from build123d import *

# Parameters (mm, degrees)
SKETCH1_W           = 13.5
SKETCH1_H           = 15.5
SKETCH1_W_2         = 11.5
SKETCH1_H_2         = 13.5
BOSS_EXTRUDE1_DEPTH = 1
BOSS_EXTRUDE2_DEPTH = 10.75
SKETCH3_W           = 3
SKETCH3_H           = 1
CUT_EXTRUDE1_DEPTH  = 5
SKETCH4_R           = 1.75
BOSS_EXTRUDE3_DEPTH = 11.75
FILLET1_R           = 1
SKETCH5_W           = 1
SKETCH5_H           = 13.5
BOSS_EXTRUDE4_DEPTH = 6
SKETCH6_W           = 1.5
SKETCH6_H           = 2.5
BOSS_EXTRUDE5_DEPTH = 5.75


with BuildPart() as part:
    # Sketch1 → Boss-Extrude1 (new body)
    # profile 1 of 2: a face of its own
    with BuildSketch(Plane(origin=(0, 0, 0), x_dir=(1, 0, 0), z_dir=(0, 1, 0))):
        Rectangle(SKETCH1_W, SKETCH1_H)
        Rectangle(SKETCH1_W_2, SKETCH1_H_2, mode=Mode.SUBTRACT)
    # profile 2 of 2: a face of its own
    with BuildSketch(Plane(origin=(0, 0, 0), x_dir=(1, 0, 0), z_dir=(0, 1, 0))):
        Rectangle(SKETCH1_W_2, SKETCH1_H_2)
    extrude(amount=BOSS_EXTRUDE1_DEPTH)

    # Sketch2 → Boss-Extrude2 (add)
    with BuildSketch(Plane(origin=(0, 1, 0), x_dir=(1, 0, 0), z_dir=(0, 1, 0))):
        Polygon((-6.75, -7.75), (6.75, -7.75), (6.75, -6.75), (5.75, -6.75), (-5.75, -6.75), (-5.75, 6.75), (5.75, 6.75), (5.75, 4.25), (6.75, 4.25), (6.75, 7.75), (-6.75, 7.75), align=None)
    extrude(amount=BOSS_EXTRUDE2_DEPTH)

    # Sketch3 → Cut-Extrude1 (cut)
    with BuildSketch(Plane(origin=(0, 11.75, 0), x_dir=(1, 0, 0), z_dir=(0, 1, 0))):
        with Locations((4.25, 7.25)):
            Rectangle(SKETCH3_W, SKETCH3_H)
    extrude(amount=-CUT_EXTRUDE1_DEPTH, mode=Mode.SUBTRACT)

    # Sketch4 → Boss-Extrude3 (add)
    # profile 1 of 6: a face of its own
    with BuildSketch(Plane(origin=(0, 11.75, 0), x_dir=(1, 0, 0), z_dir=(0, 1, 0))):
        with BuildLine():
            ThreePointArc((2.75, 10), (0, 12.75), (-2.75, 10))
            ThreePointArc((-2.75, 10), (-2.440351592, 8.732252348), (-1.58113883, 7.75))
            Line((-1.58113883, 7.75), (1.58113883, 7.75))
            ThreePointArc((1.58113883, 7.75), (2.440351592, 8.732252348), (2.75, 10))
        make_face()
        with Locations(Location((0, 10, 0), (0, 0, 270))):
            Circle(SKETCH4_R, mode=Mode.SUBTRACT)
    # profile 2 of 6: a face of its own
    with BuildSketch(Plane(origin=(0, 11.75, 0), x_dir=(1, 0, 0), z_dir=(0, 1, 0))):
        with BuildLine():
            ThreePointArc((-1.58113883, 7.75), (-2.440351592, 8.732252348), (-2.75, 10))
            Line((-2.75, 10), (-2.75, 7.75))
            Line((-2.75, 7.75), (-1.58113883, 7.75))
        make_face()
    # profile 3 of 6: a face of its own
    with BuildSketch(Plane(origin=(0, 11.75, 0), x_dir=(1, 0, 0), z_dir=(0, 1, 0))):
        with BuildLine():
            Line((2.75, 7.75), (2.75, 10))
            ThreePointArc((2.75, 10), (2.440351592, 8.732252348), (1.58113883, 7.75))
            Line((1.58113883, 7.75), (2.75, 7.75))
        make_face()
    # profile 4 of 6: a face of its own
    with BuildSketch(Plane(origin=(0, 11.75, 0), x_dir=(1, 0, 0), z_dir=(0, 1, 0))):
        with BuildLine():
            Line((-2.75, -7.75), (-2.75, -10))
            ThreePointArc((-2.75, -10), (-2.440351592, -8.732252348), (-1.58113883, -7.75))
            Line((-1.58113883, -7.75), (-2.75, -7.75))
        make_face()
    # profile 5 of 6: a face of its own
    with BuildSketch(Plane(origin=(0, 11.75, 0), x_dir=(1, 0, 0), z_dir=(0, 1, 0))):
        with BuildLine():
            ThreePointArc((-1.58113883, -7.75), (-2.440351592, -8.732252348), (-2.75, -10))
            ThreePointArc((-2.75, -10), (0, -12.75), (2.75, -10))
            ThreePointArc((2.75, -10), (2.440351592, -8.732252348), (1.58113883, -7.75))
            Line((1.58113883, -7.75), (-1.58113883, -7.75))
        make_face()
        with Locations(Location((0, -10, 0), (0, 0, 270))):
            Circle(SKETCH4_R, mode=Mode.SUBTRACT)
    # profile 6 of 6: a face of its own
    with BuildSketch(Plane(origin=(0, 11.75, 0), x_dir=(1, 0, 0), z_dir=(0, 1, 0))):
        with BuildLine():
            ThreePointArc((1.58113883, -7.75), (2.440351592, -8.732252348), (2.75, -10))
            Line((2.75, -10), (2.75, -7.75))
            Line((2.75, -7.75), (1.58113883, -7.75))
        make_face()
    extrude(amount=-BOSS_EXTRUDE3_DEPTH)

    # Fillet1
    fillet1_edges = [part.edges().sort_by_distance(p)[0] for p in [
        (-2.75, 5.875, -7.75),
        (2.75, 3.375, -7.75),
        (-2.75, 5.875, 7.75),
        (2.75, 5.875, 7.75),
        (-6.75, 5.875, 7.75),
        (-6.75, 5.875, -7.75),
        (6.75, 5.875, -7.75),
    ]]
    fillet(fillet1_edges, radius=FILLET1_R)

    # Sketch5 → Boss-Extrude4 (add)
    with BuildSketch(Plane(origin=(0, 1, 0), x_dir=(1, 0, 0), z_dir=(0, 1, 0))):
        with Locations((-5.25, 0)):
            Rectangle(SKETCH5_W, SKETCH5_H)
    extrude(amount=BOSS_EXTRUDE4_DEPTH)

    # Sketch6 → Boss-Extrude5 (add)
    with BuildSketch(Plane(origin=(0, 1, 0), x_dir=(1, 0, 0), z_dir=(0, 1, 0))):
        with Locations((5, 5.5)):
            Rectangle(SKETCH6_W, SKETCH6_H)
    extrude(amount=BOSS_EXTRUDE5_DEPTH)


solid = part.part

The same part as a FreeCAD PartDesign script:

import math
import FreeCAD as App
import Part
import Sketcher
from FreeCAD import Vector
Q = App.Units.Quantity


def edges_at(feature, points):
    """Names of the edges that pass closest to the given points."""
    edges = feature.Shape.Edges
    near = lambda p: min(range(len(edges)), key=lambda i: edges[i].distToShape(Part.Vertex(*p))[0])
    return sorted({f"Edge{near(p) + 1}" for p in points})

doc = App.newDocument("Part")
body = doc.addObject("PartDesign::Body", "Body")

# Sketch on XZ plane
sketch1 = body.newObject("Sketcher::SketchObject", "Sketch")
sketch1.AttachmentSupport = (doc.getObject("XZ_Plane"), [""])
sketch1.MapMode = "FlatFace"
sketch1.addGeometry([
    Part.LineSegment(Vector(-6.75, -7.75, 0), Vector(-6.75, 7.75, 0)),
    Part.LineSegment(Vector(-6.75, 7.75, 0), Vector(6.75, 7.75, 0)),
    Part.LineSegment(Vector(6.75, 7.75, 0), Vector(6.75, -7.75, 0)),
    Part.LineSegment(Vector(6.75, -7.75, 0), Vector(-6.75, -7.75, 0)),
], False)
sketch1.addConstraint([
    Sketcher.Constraint("Coincident", 0, 2, 1, 1),
    Sketcher.Constraint("Coincident", 1, 2, 2, 1),
    Sketcher.Constraint("Coincident", 2, 2, 3, 1),
    Sketcher.Constraint("Coincident", 3, 2, 0, 1),
    Sketcher.Constraint("Vertical", 0),
    Sketcher.Constraint("Horizontal", 1),
    Sketcher.Constraint("Vertical", 2),
    Sketcher.Constraint("Horizontal", 3),
    Sketcher.Constraint("Symmetric", 0, 2, 2, 2, -1, 1),
    Sketcher.Constraint("DistanceX", 1, 1, 1, 2, Q("13.5 mm")),
    Sketcher.Constraint("DistanceY", 0, 1, 0, 2, Q("15.5 mm")),
])
pad1 = body.newObject("PartDesign::Pad", "Pad")
pad1.Profile = sketch1
pad1.Length = 1
pad1.Reversed = True

# Sketch on XZ plane
sketch2 = body.newObject("Sketcher::SketchObject", "Sketch001")
sketch2.AttachmentSupport = (doc.getObject("XZ_Plane"), [""])
sketch2.MapMode = "FlatFace"
sketch2.AttachmentOffset = App.Placement(Vector(0, 0, -1), App.Rotation())
sketch2.addGeometry([
    Part.LineSegment(Vector(-6.75, 7.75, 0), Vector(6.75, 7.75, 0)),  # 0
    Part.LineSegment(Vector(6.75, 7.75, 0), Vector(6.75, 6.75, 0)),  # 1
    Part.LineSegment(Vector(6.75, 6.75, 0), Vector(-5.75, 6.75, 0)),  # 2
    Part.LineSegment(Vector(-5.75, 6.75, 0), Vector(-5.75, -6.75, 0)),  # 3
    Part.LineSegment(Vector(-5.75, -6.75, 0), Vector(5.75, -6.75, 0)),  # 4
    Part.LineSegment(Vector(5.75, -6.75, 0), Vector(5.75, -4.25, 0)),  # 5
    Part.LineSegment(Vector(5.75, -4.25, 0), Vector(6.75, -4.25, 0)),  # 6
    Part.LineSegment(Vector(6.75, -4.25, 0), Vector(6.75, -7.75, 0)),  # 7
    Part.LineSegment(Vector(6.75, -7.75, 0), Vector(-6.75, -7.75, 0)),  # 8
    Part.LineSegment(Vector(-6.75, -7.75, 0), Vector(-6.75, 7.75, 0)),  # 9
], False)
sketch2.addConstraint([
    Sketcher.Constraint("Coincident", 0, 2, 1, 1),
    Sketcher.Constraint("Coincident", 1, 2, 2, 1),
    Sketcher.Constraint("Coincident", 2, 2, 3, 1),
    Sketcher.Constraint("Coincident", 3, 2, 4, 1),
    Sketcher.Constraint("Coincident", 4, 2, 5, 1),
    Sketcher.Constraint("Coincident", 5, 2, 6, 1),
    Sketcher.Constraint("Coincident", 6, 2, 7, 1),
    Sketcher.Constraint("Coincident", 7, 2, 8, 1),
    Sketcher.Constraint("Coincident", 8, 2, 9, 1),
    Sketcher.Constraint("Coincident", 9, 2, 0, 1),
    Sketcher.Constraint("Horizontal", 0),
    Sketcher.Constraint("Vertical", 1),
    Sketcher.Constraint("Horizontal", 2),
    Sketcher.Constraint("Vertical", 3),
    Sketcher.Constraint("Horizontal", 4),
    Sketcher.Constraint("Vertical", 5),
    Sketcher.Constraint("Horizontal", 6),
    Sketcher.Constraint("Vertical", 7),
    Sketcher.Constraint("Horizontal", 8),
    Sketcher.Constraint("Vertical", 9),
    Sketcher.Constraint("Symmetric", 2, 2, 4, 2, -1, 1),
    Sketcher.Constraint("Symmetric", 0, 2, 8, 2, -1, 1),
    Sketcher.Constraint("Vertical", 1, 2, 6, 2),
    Sketcher.Constraint("Equal", 6, 1),
    Sketcher.Constraint("Equal", 8, 3),
    Sketcher.Constraint("DistanceX", 6, 1, 6, 2, Q("1 mm")),
    Sketcher.Constraint("DistanceX", 0, 1, 0, 2, Q("13.5 mm")),
    Sketcher.Constraint("DistanceY", 5, 1, 5, 2, Q("2.5 mm")),
])
pad2 = body.newObject("PartDesign::Pad", "Pad001")
pad2.Profile = sketch2
pad2.Length = 10.75
pad2.Reversed = True

# Sketch on XZ plane
sketch3 = body.newObject("Sketcher::SketchObject", "Sketch002")
sketch3.AttachmentSupport = (doc.getObject("XZ_Plane"), [""])
sketch3.MapMode = "FlatFace"
sketch3.AttachmentOffset = App.Placement(Vector(0, 0, -11.75), App.Rotation())
sketch3.addGeometry([
    Part.LineSegment(Vector(2.75, -7.75, 0), Vector(2.75, -6.75, 0)),
    Part.LineSegment(Vector(2.75, -6.75, 0), Vector(5.75, -6.75, 0)),
    Part.LineSegment(Vector(5.75, -6.75, 0), Vector(5.75, -7.75, 0)),
    Part.LineSegment(Vector(5.75, -7.75, 0), Vector(2.75, -7.75, 0)),
], False)
sketch3.addConstraint([
    Sketcher.Constraint("Coincident", 0, 2, 1, 1),
    Sketcher.Constraint("Coincident", 1, 2, 2, 1),
    Sketcher.Constraint("Coincident", 2, 2, 3, 1),
    Sketcher.Constraint("Coincident", 3, 2, 0, 1),
    Sketcher.Constraint("Vertical", 0),
    Sketcher.Constraint("Horizontal", 1),
    Sketcher.Constraint("Vertical", 2),
    Sketcher.Constraint("Horizontal", 3),
    Sketcher.Constraint("DistanceX", 1, 1, 1, 2, Q("3 mm")),
    Sketcher.Constraint("DistanceY", 0, 1, 0, 2, Q("1 mm")),
    Sketcher.Constraint("DistanceX", -1, 1, 0, 2, Q("2.75 mm")),
    Sketcher.Constraint("DistanceY", 0, 2, -1, 1, Q("6.75 mm")),
])
pocket1 = body.newObject("PartDesign::Pocket", "Pocket")
pocket1.Profile = sketch3
pocket1.Length = 5
pocket1.Reversed = True

# Sketch on XZ plane
sketch4 = body.newObject("Sketcher::SketchObject", "Sketch003")
sketch4.AttachmentSupport = (doc.getObject("XZ_Plane"), [""])
sketch4.MapMode = "FlatFace"
sketch4.AttachmentOffset = App.Placement(Vector(0, 0, -11.75), App.Rotation())
sketch4.addGeometry([
    Part.ArcOfCircle(Part.Circle(Vector(0, -10, 0), Vector(0, 0, 1), 2.75), math.radians(180), math.radians(360)),  # 0
    Part.LineSegment(Vector(-2.75, -10, 0), Vector(-2.75, -7.75, 0)),  # 1
    Part.LineSegment(Vector(-2.75, -7.75, 0), Vector(2.75, -7.75, 0)),  # 2
    Part.LineSegment(Vector(2.75, -7.75, 0), Vector(2.75, -10, 0)),  # 3
    Part.Circle(Vector(0, -10, 0), Vector(0, 0, 1), 1.75),  # 4
    Part.LineSegment(Vector(-2.75, 7.75, 0), Vector(-2.75, 10, 0)),  # 5
    Part.ArcOfCircle(Part.Circle(Vector(0, 10, 0), Vector(0, 0, 1), 2.75), math.radians(0), math.radians(180)),  # 6
    Part.LineSegment(Vector(2.75, 10, 0), Vector(2.75, 7.75, 0)),  # 7
    Part.LineSegment(Vector(2.75, 7.75, 0), Vector(-2.75, 7.75, 0)),  # 8
    Part.Circle(Vector(0, 10, 0), Vector(0, 0, 1), 1.75),  # 9
], False)
sketch4.addConstraint([
    Sketcher.Constraint("Tangent", 0, 1, 1, 1),
    Sketcher.Constraint("Coincident", 1, 2, 2, 1),
    Sketcher.Constraint("Coincident", 2, 2, 3, 1),
    Sketcher.Constraint("Tangent", 3, 2, 0, 2),
    Sketcher.Constraint("Tangent", 5, 2, 6, 2),
    Sketcher.Constraint("Tangent", 6, 1, 7, 1),
    Sketcher.Constraint("Coincident", 7, 2, 8, 1),
    Sketcher.Constraint("Coincident", 8, 2, 5, 1),
    Sketcher.Constraint("Vertical", 1),
    Sketcher.Constraint("Horizontal", 2),
    Sketcher.Constraint("Vertical", 3),
    Sketcher.Constraint("Vertical", 5),
    Sketcher.Constraint("Vertical", 7),
    Sketcher.Constraint("Horizontal", 8),
    Sketcher.Constraint("Coincident", 4, 3, 0, 3),
    Sketcher.Constraint("Coincident", 9, 3, 6, 3),
    Sketcher.Constraint("Equal", 0, 6),
    Sketcher.Constraint("Equal", 4, 9),
    Sketcher.Constraint("Symmetric", 0, 3, 6, 3, -1, 1),
    Sketcher.Constraint("Symmetric", 2, 2, 7, 2, -1),
    Sketcher.Constraint("Diameter", 4, Q("3.5 mm")),
    Sketcher.Constraint("Radius", 0, Q("2.75 mm")),
    Sketcher.Constraint("DistanceY", 0, 3, -1, 1, Q("10 mm")),
    Sketcher.Constraint("DistanceY", 1, 1, 1, 2, Q("2.25 mm")),
])
pad3 = body.newObject("PartDesign::Pad", "Pad002")
pad3.Profile = sketch4
pad3.Length = 11.75
doc.recompute()

fillet = body.newObject("PartDesign::Fillet", "Fillet")
fillet.Base = (pad3, edges_at(pad3, [
    (-2.75, 5.875, -7.75),
    (2.75, 3.375, -7.75),
    (-2.75, 5.875, 7.75),
    (2.75, 5.875, 7.75),
    (-6.75, 5.875, 7.75),
    (-6.75, 5.875, -7.75),
    (6.75, 5.875, -7.75),
]))
fillet.Radius = 1

# Sketch on XZ plane
sketch5 = body.newObject("Sketcher::SketchObject", "Sketch004")
sketch5.AttachmentSupport = (doc.getObject("XZ_Plane"), [""])
sketch5.MapMode = "FlatFace"
sketch5.AttachmentOffset = App.Placement(Vector(0, 0, -1), App.Rotation())
sketch5.addGeometry([
    Part.LineSegment(Vector(-5.75, -6.75, 0), Vector(-5.75, 6.75, 0)),
    Part.LineSegment(Vector(-5.75, 6.75, 0), Vector(-4.75, 6.75, 0)),
    Part.LineSegment(Vector(-4.75, 6.75, 0), Vector(-4.75, -6.75, 0)),
    Part.LineSegment(Vector(-4.75, -6.75, 0), Vector(-5.75, -6.75, 0)),
], False)
sketch5.addConstraint([
    Sketcher.Constraint("Coincident", 0, 2, 1, 1),
    Sketcher.Constraint("Coincident", 1, 2, 2, 1),
    Sketcher.Constraint("Coincident", 2, 2, 3, 1),
    Sketcher.Constraint("Coincident", 3, 2, 0, 1),
    Sketcher.Constraint("Vertical", 0),
    Sketcher.Constraint("Horizontal", 1),
    Sketcher.Constraint("Vertical", 2),
    Sketcher.Constraint("Horizontal", 3),
    Sketcher.Constraint("DistanceX", 1, 1, 1, 2, Q("1 mm")),
    Sketcher.Constraint("DistanceY", 0, 1, 0, 2, Q("13.5 mm")),
    Sketcher.Constraint("DistanceX", 0, 2, -1, 1, Q("5.75 mm")),
    Sketcher.Constraint("DistanceY", -1, 1, 0, 2, Q("6.75 mm")),
])
pad4 = body.newObject("PartDesign::Pad", "Pad003")
pad4.Profile = sketch5
pad4.Length = 6
pad4.Reversed = True

# Sketch on XZ plane
sketch6 = body.newObject("Sketcher::SketchObject", "Sketch005")
sketch6.AttachmentSupport = (doc.getObject("XZ_Plane"), [""])
sketch6.MapMode = "FlatFace"
sketch6.AttachmentOffset = App.Placement(Vector(0, 0, -1), App.Rotation())
sketch6.addGeometry([
    Part.LineSegment(Vector(4.25, -6.75, 0), Vector(4.25, -4.25, 0)),
    Part.LineSegment(Vector(4.25, -4.25, 0), Vector(5.75, -4.25, 0)),
    Part.LineSegment(Vector(5.75, -4.25, 0), Vector(5.75, -6.75, 0)),
    Part.LineSegment(Vector(5.75, -6.75, 0), Vector(4.25, -6.75, 0)),
], False)
sketch6.addConstraint([
    Sketcher.Constraint("Coincident", 0, 2, 1, 1),
    Sketcher.Constraint("Coincident", 1, 2, 2, 1),
    Sketcher.Constraint("Coincident", 2, 2, 3, 1),
    Sketcher.Constraint("Coincident", 3, 2, 0, 1),
    Sketcher.Constraint("Vertical", 0),
    Sketcher.Constraint("Horizontal", 1),
    Sketcher.Constraint("Vertical", 2),
    Sketcher.Constraint("Horizontal", 3),
    Sketcher.Constraint("DistanceX", 1, 1, 1, 2, Q("1.5 mm")),
    Sketcher.Constraint("DistanceY", 0, 1, 0, 2, Q("2.5 mm")),
    Sketcher.Constraint("DistanceX", -1, 1, 0, 2, Q("4.25 mm")),
    Sketcher.Constraint("DistanceY", 0, 2, -1, 1, Q("4.25 mm")),
])
pad5 = body.newObject("PartDesign::Pad", "Pad004")
pad5.Profile = sketch6
pad5.Length = 5.75
pad5.Reversed = True

doc.recompute()
